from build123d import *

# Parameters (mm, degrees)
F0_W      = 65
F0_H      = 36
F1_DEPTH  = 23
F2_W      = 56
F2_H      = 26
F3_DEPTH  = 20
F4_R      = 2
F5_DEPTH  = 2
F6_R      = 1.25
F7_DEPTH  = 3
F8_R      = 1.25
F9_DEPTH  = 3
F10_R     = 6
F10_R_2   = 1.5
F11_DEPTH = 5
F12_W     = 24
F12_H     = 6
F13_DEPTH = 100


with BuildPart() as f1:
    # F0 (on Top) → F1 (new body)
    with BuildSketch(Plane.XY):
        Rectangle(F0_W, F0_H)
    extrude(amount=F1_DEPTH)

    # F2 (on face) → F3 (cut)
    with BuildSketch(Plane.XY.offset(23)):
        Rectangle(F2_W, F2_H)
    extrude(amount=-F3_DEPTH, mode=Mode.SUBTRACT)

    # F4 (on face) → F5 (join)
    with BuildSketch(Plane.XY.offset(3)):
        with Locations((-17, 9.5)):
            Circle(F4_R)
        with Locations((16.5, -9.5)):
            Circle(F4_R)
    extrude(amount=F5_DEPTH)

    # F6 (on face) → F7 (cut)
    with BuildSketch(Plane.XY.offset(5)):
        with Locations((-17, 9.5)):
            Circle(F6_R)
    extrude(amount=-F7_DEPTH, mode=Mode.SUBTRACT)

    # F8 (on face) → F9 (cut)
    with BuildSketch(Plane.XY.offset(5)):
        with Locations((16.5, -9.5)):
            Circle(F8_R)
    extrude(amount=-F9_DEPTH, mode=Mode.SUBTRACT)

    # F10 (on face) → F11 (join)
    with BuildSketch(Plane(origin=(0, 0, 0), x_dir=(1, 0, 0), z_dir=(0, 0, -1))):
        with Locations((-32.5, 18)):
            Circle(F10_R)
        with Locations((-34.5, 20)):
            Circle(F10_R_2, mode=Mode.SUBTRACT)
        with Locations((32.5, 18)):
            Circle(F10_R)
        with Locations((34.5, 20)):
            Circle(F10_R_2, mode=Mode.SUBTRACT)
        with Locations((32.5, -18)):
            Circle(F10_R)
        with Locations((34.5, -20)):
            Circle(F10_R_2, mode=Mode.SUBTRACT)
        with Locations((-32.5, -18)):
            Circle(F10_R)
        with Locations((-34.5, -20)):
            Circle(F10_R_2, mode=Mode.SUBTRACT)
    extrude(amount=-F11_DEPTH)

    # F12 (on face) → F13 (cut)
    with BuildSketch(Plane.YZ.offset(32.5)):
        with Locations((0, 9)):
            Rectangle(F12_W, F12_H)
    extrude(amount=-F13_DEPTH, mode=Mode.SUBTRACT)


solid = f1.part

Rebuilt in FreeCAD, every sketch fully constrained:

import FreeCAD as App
import Part
import Sketcher

V = App.Vector
Q = App.Units.Quantity

doc = App.newDocument("Part")
body = doc.addObject("PartDesign::Body", "Body")

sketch1 = body.newObject("Sketcher::SketchObject", "Sketch")
sketch1.AttachmentSupport = (doc.getObject("XY_Plane"), [""])
sketch1.MapMode = "FlatFace"
sketch1.addGeometry([
    Part.LineSegment(V(-32, 18, 0), V(-32, -18, 0)),
    Part.LineSegment(V(-32, -18, 0), V(32, -18, 0)),
    Part.LineSegment(V(32, -18, 0), V(32, 18, 0)),
    Part.LineSegment(V(32, 18, 0), V(-32, 18, 0)),
], False)
sketch1.addConstraint([
    Sketcher.Constraint("Coincident", 0, 2, 1, 1),
    Sketcher.Constraint("Coincident", 1, 2, 2, 1),
    Sketcher.Constraint("Coincident", 2, 2, 3, 1),
    Sketcher.Constraint("Coincident", 3, 2, 0, 1),
    Sketcher.Constraint("Vertical", 0),
    Sketcher.Constraint("Horizontal", 1),
    Sketcher.Constraint("Vertical", 2),
    Sketcher.Constraint("Horizontal", 3),
    Sketcher.Constraint("Symmetric", 0, 2, 2, 2, -1, 1),
    Sketcher.Constraint("DistanceX", 1, 1, 1, 2, Q("65 mm")),
    Sketcher.Constraint("DistanceY", 0, 2, 0, 1, Q("36 mm")),
])
pad1 = body.newObject("PartDesign::Pad", "Pad")
pad1.Profile = sketch1
pad1.Length = 23

sketch2 = body.newObject("Sketcher::SketchObject", "Sketch001")
sketch2.AttachmentSupport = (doc.getObject("XY_Plane"), [""])
sketch2.MapMode = "FlatFace"
sketch2.AttachmentOffset = App.Placement(V(0, 0, 23), App.Rotation())
sketch2.addGeometry([
    Part.LineSegment(V(-28, 13, 0), V(-28, -13, 0)),
    Part.LineSegment(V(-28, -13, 0), V(28, -13, 0)),
    Part.LineSegment(V(28, -13, 0), V(28, 13, 0)),
    Part.LineSegment(V(28, 13, 0), V(-28, 13, 0)),
], False)
sketch2.addConstraint([
    Sketcher.Constraint("Coincident", 0, 2, 1, 1),
    Sketcher.Constraint("Coincident", 1, 2, 2, 1),
    Sketcher.Constraint("Coincident", 2, 2, 3, 1),
    Sketcher.Constraint("Coincident", 3, 2, 0, 1),
    Sketcher.Constraint("Vertical", 0),
    Sketcher.Constraint("Horizontal", 1),
    Sketcher.Constraint("Vertical", 2),
    Sketcher.Constraint("Horizontal", 3),
    Sketcher.Constraint("Symmetric", 0, 2, 2, 2, -1, 1),
    Sketcher.Constraint("DistanceX", 1, 1, 1, 2, Q("56 mm")),
    Sketcher.Constraint("DistanceY", 0, 2, 0, 1, Q("26 mm")),
])
pocket1 = body.newObject("PartDesign::Pocket", "Pocket")
pocket1.Profile = sketch2
pocket1.Length = 20

sketch3 = body.newObject("Sketcher::SketchObject", "Sketch002")
sketch3.AttachmentSupport = (doc.getObject("XY_Plane"), [""])
sketch3.MapMode = "FlatFace"
sketch3.AttachmentOffset = App.Placement(V(0, 0, 3), App.Rotation())
sketch3.addGeometry([
    Part.Circle(V(-17, 9.5, 0), V(0, 0, 1), 2),
    Part.Circle(V(16.5, -9.5, 0), V(0, 0, 1), 2),
], False)
sketch3.addConstraint([
    Sketcher.Constraint("Equal", 0, 1),
    Sketcher.Constraint("Diameter", 0, Q("4 mm")),
    Sketcher.Constraint("DistanceX", 0, 3, -1, 1, Q("17 mm")),
    Sketcher.Constraint("DistanceY", 1, 3, 0, 3, Q("19 mm")),
    Sketcher.Constraint("DistanceY", -1, 1, 0, 3, Q("9.5 mm")),
    Sketcher.Constraint("DistanceX", -1, 1, 1, 3, Q("16.5 mm")),
])
pad2 = body.newObject("PartDesign::Pad", "Pad001")
pad2.Profile = sketch3
pad2.Length = 2

sketch4 = body.newObject("Sketcher::SketchObject", "Sketch003")
sketch4.AttachmentSupport = (doc.getObject("XY_Plane"), [""])
sketch4.MapMode = "FlatFace"
sketch4.AttachmentOffset = App.Placement(V(0, 0, 5), App.Rotation())
sketch4.addGeometry(Part.Circle(V(-17, 9.5, 0), V(0, 0, 1), 1.2), False)
sketch4.addConstraint([
    Sketcher.Constraint("Diameter", 0, Q("2.5 mm")),
    Sketcher.Constraint("DistanceX", 0, 3, -1, 1, Q("17 mm")),
    Sketcher.Constraint("DistanceY", -1, 1, 0, 3, Q("9.5 mm")),
])
pocket2 = body.newObject("PartDesign::Pocket", "Pocket001")
pocket2.Profile = sketch4
pocket2.Length = 3

sketch5 = body.newObject("Sketcher::SketchObject", "Sketch004")
sketch5.AttachmentSupport = (doc.getObject("XY_Plane"), [""])
sketch5.MapMode = "FlatFace"
sketch5.AttachmentOffset = App.Placement(V(0, 0, 5), App.Rotation())
sketch5.addGeometry(Part.Circle(V(16.5, -9.5, 0), V(0, 0, 1), 1.2), False)
sketch5.addConstraint([
    Sketcher.Constraint("Diameter", 0, Q("2.5 mm")),
    Sketcher.Constraint("DistanceX", -1, 1, 0, 3, Q("16.5 mm")),
    Sketcher.Constraint("DistanceY", 0, 3, -1, 1, Q("9.5 mm")),
])
pocket3 = body.newObject("PartDesign::Pocket", "Pocket002")
pocket3.Profile = sketch5
pocket3.Length = 3

sketch6 = body.newObject("Sketcher::SketchObject", "Sketch005")
sketch6.AttachmentSupport = (doc.getObject("XY_Plane"), [""])
sketch6.MapMode = "FlatFace"
sketch6.addGeometry([
    Part.Circle(V(-32.5, -18, 0), V(0, 0, 1), 6),
    Part.Circle(V(-34.5, -20, 0), V(0, 0, 1), 1.5),
    Part.Circle(V(32.5, -18, 0), V(0, 0, 1), 6),
    Part.Circle(V(34.5, -20, 0), V(0, 0, 1), 1.5),
    Part.Circle(V(32.5, 18, 0), V(0, 0, 1), 6),
    Part.Circle(V(34.5, 20, 0), V(0, 0, 1), 1.5),
    Part.Circle(V(-32.5, 18, 0), V(0, 0, 1), 6),
    Part.Circle(V(-34.5, 20, 0), V(0, 0, 1), 1.5),
], False)
sketch6.addConstraint([
    Sketcher.Constraint("Equal", 0, 2),
    Sketcher.Constraint("Equal", 1, 3),
    Sketcher.Constraint("Equal", 2, 4),
    Sketcher.Constraint("Equal", 3, 5),
    Sketcher.Constraint("Equal", 4, 6),
    Sketcher.Constraint("Equal", 5, 7),
    Sketcher.Constraint("Symmetric", 0, 3, 4, 3, -1, 1),
    Sketcher.Constraint("Symmetric", 1, 3, 5, 3, -1, 1),
    Sketcher.Constraint("Symmetric", 2, 3, 6, 3, -1, 1),
    Sketcher.Constraint("Symmetric", 3, 3, 7, 3, -1, 1),
    Sketcher.Constraint("Symmetric", 0, 3, 2, 3, -2),
    Sketcher.Constraint("Symmetric", 1, 3, 3, 3, -2),
    Sketcher.Constraint("Diameter", 0, Q("12 mm")),
    Sketcher.Constraint("Diameter", 1, Q("3 mm")),
    Sketcher.Constraint("DistanceY", 0, 3, -1, 1, Q("18 mm")),
    Sketcher.Constraint("DistanceY", 1, 3, -1, 1, Q("20 mm")),
    Sketcher.Constraint("DistanceX", 1, 3, 0, 3, Q("2 mm")),
    Sketcher.Constraint("DistanceX", 0, 3, 2, 3, Q("65 mm")),
])
pad3 = body.newObject("PartDesign::Pad", "Pad002")
pad3.Profile = sketch6
pad3.Length = 5

sketch7 = body.newObject("Sketcher::SketchObject", "Sketch006")
sketch7.AttachmentSupport = (doc.getObject("YZ_Plane"), [""])
sketch7.MapMode = "FlatFace"
sketch7.AttachmentOffset = App.Placement(V(0, 0, 32.5), App.Rotation())
sketch7.addGeometry([
    Part.LineSegment(V(-12, 12, 0), V(-12, 6, 0)),
    Part.LineSegment(V(-12, 6, 0), V(12, 6, 0)),
    Part.LineSegment(V(12, 6, 0), V(12, 12, 0)),
    Part.LineSegment(V(12, 12, 0), V(-12, 12, 0)),
], False)
sketch7.addConstraint([
    Sketcher.Constraint("Coincident", 0, 2, 1, 1),
    Sketcher.Constraint("Coincident", 1, 2, 2, 1),
    Sketcher.Constraint("Coincident", 2, 2, 3, 1),
    Sketcher.Constraint("Coincident", 3, 2, 0, 1),
    Sketcher.Constraint("Vertical", 0),
    Sketcher.Constraint("Horizontal", 1),
    Sketcher.Constraint("Vertical", 2),
    Sketcher.Constraint("Horizontal", 3),
    Sketcher.Constraint("DistanceX", 1, 1, 1, 2, Q("24 mm")),
    Sketcher.Constraint("DistanceY", 0, 2, 0, 1, Q("6 mm")),
    Sketcher.Constraint("DistanceX", 0, 2, -1, 1, Q("12 mm")),
    Sketcher.Constraint("DistanceY", -1, 1, 0, 2, Q("6 mm")),
])
pocket4 = body.newObject("PartDesign::Pocket", "Pocket003")
pocket4.Profile = sketch7
pocket4.Length = 100

doc.recompute()
